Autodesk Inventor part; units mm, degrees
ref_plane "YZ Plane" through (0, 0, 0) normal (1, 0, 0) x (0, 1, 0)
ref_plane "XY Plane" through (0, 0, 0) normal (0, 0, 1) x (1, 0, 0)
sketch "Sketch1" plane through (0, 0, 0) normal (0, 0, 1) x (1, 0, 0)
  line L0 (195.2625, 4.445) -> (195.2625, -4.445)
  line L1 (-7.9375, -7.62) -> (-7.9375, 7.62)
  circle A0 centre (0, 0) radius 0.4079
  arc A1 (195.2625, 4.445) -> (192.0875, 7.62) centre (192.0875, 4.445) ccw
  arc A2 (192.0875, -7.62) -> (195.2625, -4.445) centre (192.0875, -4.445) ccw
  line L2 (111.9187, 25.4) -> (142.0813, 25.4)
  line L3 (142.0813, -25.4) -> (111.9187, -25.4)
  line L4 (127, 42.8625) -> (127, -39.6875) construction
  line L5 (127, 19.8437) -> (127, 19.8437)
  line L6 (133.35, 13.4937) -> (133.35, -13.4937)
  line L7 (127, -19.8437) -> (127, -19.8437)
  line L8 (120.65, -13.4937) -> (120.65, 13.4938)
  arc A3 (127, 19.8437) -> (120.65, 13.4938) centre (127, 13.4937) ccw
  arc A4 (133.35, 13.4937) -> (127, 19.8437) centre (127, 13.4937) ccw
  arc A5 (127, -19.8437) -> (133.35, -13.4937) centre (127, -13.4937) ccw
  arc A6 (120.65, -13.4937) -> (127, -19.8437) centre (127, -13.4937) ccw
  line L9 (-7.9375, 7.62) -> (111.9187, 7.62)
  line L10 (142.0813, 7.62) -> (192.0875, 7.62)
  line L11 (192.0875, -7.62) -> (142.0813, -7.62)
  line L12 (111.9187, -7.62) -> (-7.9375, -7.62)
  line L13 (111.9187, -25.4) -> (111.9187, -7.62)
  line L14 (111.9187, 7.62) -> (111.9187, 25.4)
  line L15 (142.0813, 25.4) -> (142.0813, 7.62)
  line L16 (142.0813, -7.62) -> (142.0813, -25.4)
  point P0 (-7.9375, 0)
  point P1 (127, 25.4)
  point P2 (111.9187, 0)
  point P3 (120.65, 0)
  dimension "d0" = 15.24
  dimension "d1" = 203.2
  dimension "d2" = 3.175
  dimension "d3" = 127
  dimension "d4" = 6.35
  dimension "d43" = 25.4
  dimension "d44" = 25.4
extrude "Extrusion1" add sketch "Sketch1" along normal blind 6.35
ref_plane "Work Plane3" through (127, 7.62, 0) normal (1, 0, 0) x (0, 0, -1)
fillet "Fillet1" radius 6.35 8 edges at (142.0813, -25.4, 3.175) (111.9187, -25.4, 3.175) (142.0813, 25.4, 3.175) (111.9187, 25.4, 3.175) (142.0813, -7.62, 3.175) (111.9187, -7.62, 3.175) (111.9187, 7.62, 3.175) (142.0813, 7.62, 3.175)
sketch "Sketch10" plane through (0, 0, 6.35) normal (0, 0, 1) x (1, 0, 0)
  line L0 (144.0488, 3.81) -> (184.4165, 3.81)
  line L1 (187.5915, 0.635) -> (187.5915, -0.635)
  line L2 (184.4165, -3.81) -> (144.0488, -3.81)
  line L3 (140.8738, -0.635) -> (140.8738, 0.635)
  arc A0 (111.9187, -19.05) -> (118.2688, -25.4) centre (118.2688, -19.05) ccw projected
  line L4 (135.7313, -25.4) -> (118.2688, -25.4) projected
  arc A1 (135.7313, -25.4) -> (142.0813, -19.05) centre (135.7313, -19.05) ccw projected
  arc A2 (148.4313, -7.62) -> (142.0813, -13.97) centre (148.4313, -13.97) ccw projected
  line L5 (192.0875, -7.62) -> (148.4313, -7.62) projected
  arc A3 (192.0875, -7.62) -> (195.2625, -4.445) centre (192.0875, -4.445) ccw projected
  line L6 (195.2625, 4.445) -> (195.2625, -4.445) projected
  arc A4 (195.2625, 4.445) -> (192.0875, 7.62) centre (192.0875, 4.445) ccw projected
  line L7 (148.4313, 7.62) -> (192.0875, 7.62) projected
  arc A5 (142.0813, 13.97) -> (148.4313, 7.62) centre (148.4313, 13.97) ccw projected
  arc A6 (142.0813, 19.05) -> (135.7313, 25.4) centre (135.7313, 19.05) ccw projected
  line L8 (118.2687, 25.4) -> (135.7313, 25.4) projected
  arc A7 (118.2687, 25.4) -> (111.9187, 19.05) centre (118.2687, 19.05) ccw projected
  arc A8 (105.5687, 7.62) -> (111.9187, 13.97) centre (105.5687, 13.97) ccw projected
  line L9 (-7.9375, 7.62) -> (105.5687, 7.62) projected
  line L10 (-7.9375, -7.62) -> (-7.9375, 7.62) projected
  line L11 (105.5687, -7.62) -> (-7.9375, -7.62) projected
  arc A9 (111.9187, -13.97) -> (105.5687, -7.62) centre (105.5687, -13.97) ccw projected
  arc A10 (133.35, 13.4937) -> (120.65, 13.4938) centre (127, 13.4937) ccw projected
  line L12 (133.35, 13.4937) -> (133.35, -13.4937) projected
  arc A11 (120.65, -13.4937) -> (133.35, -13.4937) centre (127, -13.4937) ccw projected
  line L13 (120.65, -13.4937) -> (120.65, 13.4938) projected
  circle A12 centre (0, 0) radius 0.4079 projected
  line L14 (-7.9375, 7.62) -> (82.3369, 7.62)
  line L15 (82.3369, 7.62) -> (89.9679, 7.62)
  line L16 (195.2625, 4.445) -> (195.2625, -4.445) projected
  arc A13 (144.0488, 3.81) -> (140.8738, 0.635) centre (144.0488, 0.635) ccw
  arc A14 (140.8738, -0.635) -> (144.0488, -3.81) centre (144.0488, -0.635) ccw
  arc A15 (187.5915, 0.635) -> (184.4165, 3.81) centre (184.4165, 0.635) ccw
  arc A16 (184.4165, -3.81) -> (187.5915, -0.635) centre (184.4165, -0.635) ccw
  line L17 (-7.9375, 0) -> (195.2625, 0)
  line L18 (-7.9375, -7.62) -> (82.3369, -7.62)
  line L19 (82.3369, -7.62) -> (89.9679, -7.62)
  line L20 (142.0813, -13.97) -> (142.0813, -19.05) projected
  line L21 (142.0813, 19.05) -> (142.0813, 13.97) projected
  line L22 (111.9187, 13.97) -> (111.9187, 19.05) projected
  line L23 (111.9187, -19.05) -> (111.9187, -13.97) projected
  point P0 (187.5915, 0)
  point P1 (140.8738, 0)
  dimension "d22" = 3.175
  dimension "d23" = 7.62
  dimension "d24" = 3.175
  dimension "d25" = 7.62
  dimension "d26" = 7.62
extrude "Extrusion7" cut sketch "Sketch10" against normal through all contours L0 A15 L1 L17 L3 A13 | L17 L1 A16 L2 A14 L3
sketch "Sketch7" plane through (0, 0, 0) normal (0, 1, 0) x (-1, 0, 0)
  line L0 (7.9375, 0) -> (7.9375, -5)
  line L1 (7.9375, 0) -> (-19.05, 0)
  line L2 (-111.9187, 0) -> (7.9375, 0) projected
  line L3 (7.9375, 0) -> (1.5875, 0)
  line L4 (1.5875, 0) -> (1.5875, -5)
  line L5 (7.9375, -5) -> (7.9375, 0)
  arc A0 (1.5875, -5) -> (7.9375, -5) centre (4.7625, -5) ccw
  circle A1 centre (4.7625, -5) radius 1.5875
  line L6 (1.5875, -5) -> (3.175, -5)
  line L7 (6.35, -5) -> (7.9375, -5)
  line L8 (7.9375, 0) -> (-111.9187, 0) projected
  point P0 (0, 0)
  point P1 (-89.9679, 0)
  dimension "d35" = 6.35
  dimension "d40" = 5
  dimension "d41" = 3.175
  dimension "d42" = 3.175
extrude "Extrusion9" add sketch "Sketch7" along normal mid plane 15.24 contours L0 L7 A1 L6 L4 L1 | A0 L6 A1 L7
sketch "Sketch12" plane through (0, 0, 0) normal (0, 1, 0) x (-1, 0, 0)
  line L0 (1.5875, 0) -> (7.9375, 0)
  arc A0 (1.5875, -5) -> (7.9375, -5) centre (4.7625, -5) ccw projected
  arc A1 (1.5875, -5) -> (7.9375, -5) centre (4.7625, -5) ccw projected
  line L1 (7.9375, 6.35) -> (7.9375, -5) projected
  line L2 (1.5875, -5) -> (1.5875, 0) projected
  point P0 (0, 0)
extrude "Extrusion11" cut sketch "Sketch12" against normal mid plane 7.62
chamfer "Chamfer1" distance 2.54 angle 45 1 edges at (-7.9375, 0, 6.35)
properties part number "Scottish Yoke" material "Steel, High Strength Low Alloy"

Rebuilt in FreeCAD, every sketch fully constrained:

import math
import FreeCAD as App
import Part
import Sketcher
from FreeCAD import Vector
Q = App.Units.Quantity


def edges_at(feature, points):
    """Names of the edges that pass closest to the given points."""
    edges = feature.Shape.Edges
    near = lambda p: min(range(len(edges)), key=lambda i: edges[i].distToShape(Part.Vertex(*p))[0])
    return sorted({f"Edge{near(p) + 1}" for p in points})

doc = App.newDocument("Part")
body = doc.addObject("PartDesign::Body", "Body")

sketch1 = body.newObject("Sketcher::SketchObject", "Sketch")
sketch1.AttachmentSupport = (doc.getObject("XY_Plane"), [""])
sketch1.MapMode = "FlatFace"
sketch1.addGeometry(Part.LineSegment(Vector(195.26, -4.45, 0), Vector(195.26, 4.45, 0)), False)
sketch1.addGeometry(Part.ArcOfCircle(Part.Circle(Vector(192.09, 4.45, 0), Vector(0, 0, 1), 3.17), math.radians(0), math.radians(90)), False)
sketch1.addGeometry(Part.LineSegment(Vector(192.09, 7.62, 0), Vector(142.08, 7.62, 0)), False)
sketch1.addGeometry(Part.LineSegment(Vector(142.08, 7.62, 0), Vector(142.08, 25.4, 0)), False)
sketch1.addGeometry(Part.LineSegment(Vector(142.08, 25.4, 0), Vector(111.92, 25.4, 0)), False)
sketch1.addGeometry(Part.LineSegment(Vector(111.92, 25.4, 0), Vector(111.92, 7.62, 0)), False)
sketch1.addGeometry(Part.LineSegment(Vector(111.92, 7.62, 0), Vector(-7.94, 7.62, 0)), False)
sketch1.addGeometry(Part.LineSegment(Vector(-7.94, 7.62, 0), Vector(-7.94, -7.62, 0)), False)
sketch1.addGeometry(Part.LineSegment(Vector(-7.94, -7.62, 0), Vector(111.92, -7.62, 0)), False)
sketch1.addGeometry(Part.LineSegment(Vector(111.92, -7.62, 0), Vector(111.92, -25.4, 0)), False)
sketch1.addGeometry(Part.LineSegment(Vector(111.92, -25.4, 0), Vector(142.08, -25.4, 0)), False)
sketch1.addGeometry(Part.LineSegment(Vector(142.08, -25.4, 0), Vector(142.08, -7.62, 0)), False)
sketch1.addGeometry(Part.LineSegment(Vector(142.08, -7.62, 0), Vector(192.09, -7.62, 0)), False)
sketch1.addGeometry(Part.ArcOfCircle(Part.Circle(Vector(192.09, -4.45, 0), Vector(0, 0, 1), 3.17), math.radians(-90), math.radians(0)), False)
sketch1.addGeometry(Part.Circle(Vector(0, 0, 0), Vector(0, 0, 1), 0.41), False)
sketch1.addGeometry(Part.ArcOfCircle(Part.Circle(Vector(127, 13.49, 0), Vector(0, 0, 1), 6.35), math.radians(0), math.radians(90)), False)
sketch1.addGeometry(Part.LineSegment(Vector(133.35, 13.49, 0), Vector(133.35, -13.49, 0)), False)
sketch1.addGeometry(Part.ArcOfCircle(Part.Circle(Vector(127, -13.49, 0), Vector(0, 0, 1), 6.35), math.radians(180), math.radians(360)), False)
sketch1.addGeometry(Part.LineSegment(Vector(120.65, -13.49, 0), Vector(120.65, 13.49, 0)), False)
sketch1.addGeometry(Part.ArcOfCircle(Part.Circle(Vector(127, 13.49, 0), Vector(0, 0, 1), 6.35), math.radians(90), math.radians(180)), False)
sketch1.addConstraint(Sketcher.Constraint("Tangent", 0, 2, 1, 1))
sketch1.addConstraint(Sketcher.Constraint("Tangent", 1, 2, 2, 1))
sketch1.addConstraint(Sketcher.Constraint("Coincident", 2, 2, 3, 1))
sketch1.addConstraint(Sketcher.Constraint("Coincident", 3, 2, 4, 1))
sketch1.addConstraint(Sketcher.Constraint("Coincident", 4, 2, 5, 1))
sketch1.addConstraint(Sketcher.Constraint("Coincident", 5, 2, 6, 1))
sketch1.addConstraint(Sketcher.Constraint("Coincident", 6, 2, 7, 1))
sketch1.addConstraint(Sketcher.Constraint("Coincident", 7, 2, 8, 1))
sketch1.addConstraint(Sketcher.Constraint("Coincident", 8, 2, 9, 1))
sketch1.addConstraint(Sketcher.Constraint("Coincident", 9, 2, 10, 1))
sketch1.addConstraint(Sketcher.Constraint("Coincident", 10, 2, 11, 1))
sketch1.addConstraint(Sketcher.Constraint("Coincident", 11, 2, 12, 1))
sketch1.addConstraint(Sketcher.Constraint("Tangent", 12, 2, 13, 1))
sketch1.addConstraint(Sketcher.Constraint("Tangent", 13, 2, 0, 1))
sketch1.addConstraint(Sketcher.Constraint("Tangent", 15, 1, 16, 1))
sketch1.addConstraint(Sketcher.Constraint("Tangent", 16, 2, 17, 2))
sketch1.addConstraint(Sketcher.Constraint("Tangent", 17, 1, 18, 1))
sketch1.addConstraint(Sketcher.Constraint("Tangent", 18, 2, 19, 2))
sketch1.addConstraint(Sketcher.Constraint("Tangent", 19, 1, 15, 2))
sketch1.addConstraint(Sketcher.Constraint("Vertical", 0))
sketch1.addConstraint(Sketcher.Constraint("Horizontal", 2))
sketch1.addConstraint(Sketcher.Constraint("Vertical", 3))
sketch1.addConstraint(Sketcher.Constraint("Horizontal", 4))
sketch1.addConstraint(Sketcher.Constraint("Vertical", 5))
sketch1.addConstraint(Sketcher.Constraint("Horizontal", 6))
sketch1.addConstraint(Sketcher.Constraint("Vertical", 7))
sketch1.addConstraint(Sketcher.Constraint("Horizontal", 8))
sketch1.addConstraint(Sketcher.Constraint("Vertical", 9))
sketch1.addConstraint(Sketcher.Constraint("Horizontal", 10))
sketch1.addConstraint(Sketcher.Constraint("Vertical", 11))
sketch1.addConstraint(Sketcher.Constraint("Horizontal", 12))
sketch1.addConstraint(Sketcher.Constraint("Vertical", 16))
sketch1.addConstraint(Sketcher.Constraint("Vertical", 18))
sketch1.addConstraint(Sketcher.Constraint("Coincident", 14, 3, -1, 1))
sketch1.addConstraint(Sketcher.Constraint("Equal", 1, 13))
sketch1.addConstraint(Sketcher.Constraint("Equal", 15, 17))
sketch1.addConstraint(Sketcher.Constraint("Symmetric", 5, 2, 8, 2, -1))
sketch1.addConstraint(Sketcher.Constraint("Symmetric", 3, 2, 10, 2, -1))
sketch1.addConstraint(Sketcher.Constraint("Horizontal", 2, 2, 5, 2))
sketch1.addConstraint(Sketcher.Constraint("Horizontal", 8, 2, 11, 2))
sketch1.addConstraint(Sketcher.Constraint("Vertical", 17, 3, 19, 1))
sketch1.addConstraint(Sketcher.Constraint("Radius", 15, Q("0.25 in")))
sketch1.addConstraint(Sketcher.Constraint("DistanceY", 7, 2, 7, 1, Q("0.6 in")))
sketch1.addConstraint(Sketcher.Constraint("DistanceX", -1, 1, 15, 3, Q("5 in")))
sketch1.addConstraint(Sketcher.Constraint("DistanceY", -1, 1, 3, 2, Q("1 in")))
sketch1.addConstraint(Sketcher.Constraint("Radius", 1, Q("0.125 in")))
sketch1.addConstraint(Sketcher.Constraint("Diameter", 14, Q("0.8158 mm")))
sketch1.addConstraint(Sketcher.Constraint("DistanceX", 2, 2, 2, 1, Q("1.968748 in")))
sketch1.addConstraint(Sketcher.Constraint("DistanceX", 4, 2, 4, 1, Q("1.1875 in")))
sketch1.addConstraint(Sketcher.Constraint("DistanceX", 6, 2, 6, 1, Q("4.718748 in")))
sketch1.addConstraint(Sketcher.Constraint("DistanceY", 16, 2, 16, 1, Q("1.0625 in")))
sketch1.addConstraint(Sketcher.Constraint("DistanceX", -1, 1, 1, 3, Q("7.5625 in")))
sketch1.addConstraint(Sketcher.Constraint("DistanceY", -1, 1, 15, 3, Q("0.531248 in")))
pad1 = body.newObject("PartDesign::Pad", "Pad")
pad1.Profile = sketch1
pad1.Length = Q("0.25 in")
doc.recompute()

fillet = body.newObject("PartDesign::Fillet", "Fillet")
fillet.Base = (pad1, edges_at(pad1, [
    (142.081, -25.4, 3.175),
    (111.919, -25.4, 3.175),
    (142.081, 25.4, 3.175),
    (111.919, 25.4, 3.175),
    (142.081, -7.62, 3.175),
    (111.919, -7.62, 3.175),
    (111.919, 7.62, 3.175),
    (142.081, 7.62, 3.175),
]))
fillet.Radius = Q("0.25 in")

sketch2 = body.newObject("Sketcher::SketchObject", "Sketch001")
sketch2.AttachmentSupport = (doc.getObject("XY_Plane"), [""])
sketch2.MapMode = "FlatFace"
sketch2.AttachmentOffset = App.Placement(Vector(0, 0, 0.25 * 25.4), App.Rotation())
sketch2.addGeometry(Part.LineSegment(Vector(184.4, 3.8, 0), Vector(144, 3.8, 0)), False)
sketch2.addGeometry(Part.ArcOfCircle(Part.Circle(Vector(144, 0.6, 0), Vector(0, 0, 1), 3.2), math.radians(90), math.radians(180)), False)
sketch2.addGeometry(Part.LineSegment(Vector(140.9, 0.6, 0), Vector(140.9, -0.6, 0)), False)
sketch2.addGeometry(Part.ArcOfCircle(Part.Circle(Vector(144, -0.6, 0), Vector(0, 0, 1), 3.2), math.radians(180), math.radians(270)), False)
sketch2.addGeometry(Part.LineSegment(Vector(144, -3.8, 0), Vector(184.4, -3.8, 0)), False)
sketch2.addGeometry(Part.ArcOfCircle(Part.Circle(Vector(184.4, -0.6, 0), Vector(0, 0, 1), 3.2), math.radians(-90), math.radians(0)), False)
sketch2.addGeometry(Part.LineSegment(Vector(187.6, -0.6, 0), Vector(187.6, 0.6, 0)), False)
sketch2.addGeometry(Part.ArcOfCircle(Part.Circle(Vector(184.4, 0.6, 0), Vector(0, 0, 1), 3.2), math.radians(0), math.radians(90)), False)
sketch2.addConstraint(Sketcher.Constraint("Tangent", 0, 2, 1, 1))
sketch2.addConstraint(Sketcher.Constraint("Tangent", 1, 2, 2, 1))
sketch2.addConstraint(Sketcher.Constraint("Tangent", 2, 2, 3, 1))
sketch2.addConstraint(Sketcher.Constraint("Tangent", 3, 2, 4, 1))
sketch2.addConstraint(Sketcher.Constraint("Tangent", 4, 2, 5, 1))
sketch2.addConstraint(Sketcher.Constraint("Tangent", 5, 2, 6, 1))
sketch2.addConstraint(Sketcher.Constraint("Tangent", 6, 2, 7, 1))
sketch2.addConstraint(Sketcher.Constraint("Tangent", 7, 2, 0, 1))
sketch2.addConstraint(Sketcher.Constraint("Horizontal", 0))
sketch2.addConstraint(Sketcher.Constraint("Vertical", 2))
sketch2.addConstraint(Sketcher.Constraint("Horizontal", 4))
sketch2.addConstraint(Sketcher.Constraint("Vertical", 6))
sketch2.addConstraint(Sketcher.Constraint("Equal", 1, 3))
sketch2.addConstraint(Sketcher.Constraint("Equal", 3, 5))
sketch2.addConstraint(Sketcher.Constraint("Equal", 5, 7))
sketch2.addConstraint(Sketcher.Constraint("Radius", 1, Q("0.125 in")))
sketch2.addConstraint(Sketcher.Constraint("DistanceY", 3, 2, 0, 2, Q("0.3 in")))
sketch2.addConstraint(Sketcher.Constraint("DistanceY", -1, 1, 0, 2, Q("0.15 in")))
sketch2.addConstraint(Sketcher.Constraint("DistanceX", 0, 2, 0, 1, Q("40.3677 mm")))
sketch2.addConstraint(Sketcher.Constraint("DistanceX", -1, 1, 5, 3, Q("7.2605 in")))
pocket1 = body.newObject("PartDesign::Pocket", "Pocket")
pocket1.Profile = sketch2
pocket1.Type = "ThroughAll"

sketch3 = body.newObject("Sketcher::SketchObject", "Sketch002")
sketch3.AttachmentSupport = (doc.getObject("XZ_Plane"), [""])
sketch3.MapMode = "FlatFace"
sketch3.addGeometry(Part.LineSegment(Vector(-7.9, -5, 0), Vector(-7.9, 0, 0)), False)
sketch3.addGeometry(Part.LineSegment(Vector(-7.9, 0, 0), Vector(-1.6, 0, 0)), False)
sketch3.addGeometry(Part.LineSegment(Vector(-1.6, 0, 0), Vector(-1.6, -5, 0)), False)
sketch3.addGeometry(Part.ArcOfCircle(Part.Circle(Vector(-4.8, -5, 0), Vector(0, 0, 1), 3.2), math.radians(180), math.radians(360)), False)
sketch3.addGeometry(Part.Circle(Vector(-4.8, -5, 0), Vector(0, 0, 1), 1.6), False)
sketch3.addConstraint(Sketcher.Constraint("Coincident", 0, 2, 1, 1))
sketch3.addConstraint(Sketcher.Constraint("Coincident", 1, 2, 2, 1))
sketch3.addConstraint(Sketcher.Constraint("Tangent", 2, 2, 3, 2))
sketch3.addConstraint(Sketcher.Constraint("Tangent", 3, 1, 0, 1))
sketch3.addConstraint(Sketcher.Constraint("Vertical", 0))
sketch3.addConstraint(Sketcher.Constraint("Horizontal", 1))
sketch3.addConstraint(Sketcher.Constraint("Vertical", 2))
sketch3.addConstraint(Sketcher.Constraint("Coincident", 4, 3, 3, 3))
sketch3.addConstraint(Sketcher.Constraint("PointOnObject", 0, 2, -1))
sketch3.addConstraint(Sketcher.Constraint("Diameter", 4, Q("0.125 in")))
sketch3.addConstraint(Sketcher.Constraint("Radius", 3, Q("0.125 in")))
sketch3.addConstraint(Sketcher.Constraint("DistanceY", 0, 1, 0, 2, Q("5 mm")))
sketch3.addConstraint(Sketcher.Constraint("DistanceX", 3, 3, -1, 1, Q("0.1875 in")))
pad2 = body.newObject("PartDesign::Pad", "Pad001")
pad2.Profile = sketch3
pad2.Length = Q("0.6 in")
pad2.Midplane = True

sketch4 = body.newObject("Sketcher::SketchObject", "Sketch003")
sketch4.AttachmentSupport = (doc.getObject("XZ_Plane"), [""])
sketch4.MapMode = "FlatFace"
sketch4.addGeometry(Part.LineSegment(Vector(-7.9, 0, 0), Vector(-1.6, 0, 0)), False)
sketch4.addGeometry(Part.LineSegment(Vector(-1.6, 0, 0), Vector(-1.6, -5, 0)), False)
sketch4.addGeometry(Part.ArcOfCircle(Part.Circle(Vector(-4.8, -5, 0), Vector(0, 0, 1), 3.2), math.radians(180), math.radians(360)), False)
sketch4.addGeometry(Part.LineSegment(Vector(-7.9, -5, 0), Vector(-7.9, 0, 0)), False)
sketch4.addConstraint(Sketcher.Constraint("Coincident", 0, 2, 1, 1))
sketch4.addConstraint(Sketcher.Constraint("Tangent", 1, 2, 2, 2))
sketch4.addConstraint(Sketcher.Constraint("Tangent", 2, 1, 3, 1))
sketch4.addConstraint(Sketcher.Constraint("Coincident", 3, 2, 0, 1))
sketch4.addConstraint(Sketcher.Constraint("Horizontal", 0))
sketch4.addConstraint(Sketcher.Constraint("Vertical", 1))
sketch4.addConstraint(Sketcher.Constraint("Vertical", 3))
sketch4.addConstraint(Sketcher.Constraint("PointOnObject", 0, 2, -1))
sketch4.addConstraint(Sketcher.Constraint("Radius", 2, Q("0.125 in")))
sketch4.addConstraint(Sketcher.Constraint("DistanceX", 2, 3, -1, 1, Q("0.1875 in")))
sketch4.addConstraint(Sketcher.Constraint("DistanceY", 1, 2, 1, 1, Q("5 mm")))
pocket2 = body.newObject("PartDesign::Pocket", "Pocket001")
pocket2.Profile = sketch4
pocket2.Length = Q("0.3 in")
pocket2.Midplane = True
doc.recompute()

chamfer = body.newObject("PartDesign::Chamfer", "Chamfer")
chamfer.Base = (pocket2, edges_at(pocket2, [(-7.938, 0, 6.35)]))
chamfer.Size = Q("0.1 in")

doc.recompute()
